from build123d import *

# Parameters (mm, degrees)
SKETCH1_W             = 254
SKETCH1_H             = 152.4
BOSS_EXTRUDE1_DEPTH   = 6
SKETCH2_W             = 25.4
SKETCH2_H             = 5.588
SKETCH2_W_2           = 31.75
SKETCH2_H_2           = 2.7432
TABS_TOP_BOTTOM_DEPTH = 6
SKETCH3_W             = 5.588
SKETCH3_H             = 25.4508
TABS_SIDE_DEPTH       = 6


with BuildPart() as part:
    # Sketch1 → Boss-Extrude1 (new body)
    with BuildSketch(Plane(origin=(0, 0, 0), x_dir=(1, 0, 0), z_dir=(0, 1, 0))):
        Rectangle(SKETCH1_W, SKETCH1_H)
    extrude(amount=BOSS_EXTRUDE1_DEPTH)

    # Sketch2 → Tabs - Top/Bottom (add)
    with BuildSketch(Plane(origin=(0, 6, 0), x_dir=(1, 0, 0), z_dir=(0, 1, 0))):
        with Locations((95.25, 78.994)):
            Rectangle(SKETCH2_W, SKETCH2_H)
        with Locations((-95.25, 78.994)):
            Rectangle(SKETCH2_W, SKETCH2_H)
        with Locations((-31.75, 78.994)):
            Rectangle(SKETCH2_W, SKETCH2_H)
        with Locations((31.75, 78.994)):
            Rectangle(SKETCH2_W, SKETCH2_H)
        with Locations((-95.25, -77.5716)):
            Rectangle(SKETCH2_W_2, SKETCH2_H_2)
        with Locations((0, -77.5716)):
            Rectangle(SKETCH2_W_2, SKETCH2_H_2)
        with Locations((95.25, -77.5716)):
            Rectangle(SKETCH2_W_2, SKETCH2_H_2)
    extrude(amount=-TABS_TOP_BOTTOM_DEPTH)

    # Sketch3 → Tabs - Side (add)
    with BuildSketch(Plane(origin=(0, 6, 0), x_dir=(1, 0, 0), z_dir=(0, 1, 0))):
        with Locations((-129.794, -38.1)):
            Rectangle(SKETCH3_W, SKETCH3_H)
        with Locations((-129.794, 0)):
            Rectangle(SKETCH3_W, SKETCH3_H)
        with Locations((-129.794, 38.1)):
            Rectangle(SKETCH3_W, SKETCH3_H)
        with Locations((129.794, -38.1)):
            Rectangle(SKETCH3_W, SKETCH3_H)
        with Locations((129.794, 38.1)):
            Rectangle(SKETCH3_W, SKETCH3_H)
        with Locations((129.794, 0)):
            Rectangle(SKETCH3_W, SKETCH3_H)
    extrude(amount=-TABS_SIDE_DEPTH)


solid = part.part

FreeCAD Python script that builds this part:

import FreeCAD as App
import Part
import Sketcher
from FreeCAD import Vector
Q = App.Units.Quantity

doc = App.newDocument("Part")
body = doc.addObject("PartDesign::Body", "Body")

# Sketch on XZ plane
sketch1 = body.newObject("Sketcher::SketchObject", "Sketch")
sketch1.AttachmentSupport = (doc.getObject("XZ_Plane"), [""])
sketch1.MapMode = "FlatFace"
sketch1.addGeometry(Part.LineSegment(Vector(-127, -76, 0), Vector(-127, 76, 0)), False)
sketch1.addGeometry(Part.LineSegment(Vector(-127, 76, 0), Vector(127, 76, 0)), False)
sketch1.addGeometry(Part.LineSegment(Vector(127, 76, 0), Vector(127, -76, 0)), False)
sketch1.addGeometry(Part.LineSegment(Vector(127, -76, 0), Vector(-127, -76, 0)), False)
sketch1.addConstraint(Sketcher.Constraint("Coincident", 0, 2, 1, 1))
sketch1.addConstraint(Sketcher.Constraint("Coincident", 1, 2, 2, 1))
sketch1.addConstraint(Sketcher.Constraint("Coincident", 2, 2, 3, 1))
sketch1.addConstraint(Sketcher.Constraint("Coincident", 3, 2, 0, 1))
sketch1.addConstraint(Sketcher.Constraint("Vertical", 0))
sketch1.addConstraint(Sketcher.Constraint("Horizontal", 1))
sketch1.addConstraint(Sketcher.Constraint("Vertical", 2))
sketch1.addConstraint(Sketcher.Constraint("Horizontal", 3))
sketch1.addConstraint(Sketcher.Constraint("Symmetric", 0, 2, 2, 2, -1, 1))
sketch1.addConstraint(Sketcher.Constraint("DistanceX", 1, 1, 1, 2, Q("10 in")))
sketch1.addConstraint(Sketcher.Constraint("DistanceY", 0, 1, 0, 2, Q("6 in")))
pad1 = body.newObject("PartDesign::Pad", "Pad")
pad1.Profile = sketch1
pad1.Length = 6
pad1.Reversed = True

# Sketch on XZ plane
sketch2 = body.newObject("Sketcher::SketchObject", "Sketch001")
sketch2.AttachmentSupport = (doc.getObject("XZ_Plane"), [""])
sketch2.MapMode = "FlatFace"
sketch2.AttachmentOffset = App.Placement(Vector(0, 0, -6), App.Rotation())
sketch2.addGeometry(Part.LineSegment(Vector(82.5, -81.8, 0), Vector(82.5, -76.2, 0)), False)
sketch2.addGeometry(Part.LineSegment(Vector(82.5, -76.2, 0), Vector(108, -76.2, 0)), False)
sketch2.addGeometry(Part.LineSegment(Vector(108, -76.2, 0), Vector(108, -81.8, 0)), False)
sketch2.addGeometry(Part.LineSegment(Vector(108, -81.8, 0), Vector(82.5, -81.8, 0)), False)
sketch2.addGeometry(Part.LineSegment(Vector(-108, -81.8, 0), Vector(-108, -76.2, 0)), False)
sketch2.addGeometry(Part.LineSegment(Vector(-108, -76.2, 0), Vector(-82.5, -76.2, 0)), False)
sketch2.addGeometry(Part.LineSegment(Vector(-82.5, -76.2, 0), Vector(-82.5, -81.8, 0)), False)
sketch2.addGeometry(Part.LineSegment(Vector(-82.5, -81.8, 0), Vector(-108, -81.8, 0)), False)
sketch2.addGeometry(Part.LineSegment(Vector(-44.5, -81.8, 0), Vector(-44.5, -76.2, 0)), False)
sketch2.addGeometry(Part.LineSegment(Vector(-44.5, -76.2, 0), Vector(-19.1, -76.2, 0)), False)
sketch2.addGeometry(Part.LineSegment(Vector(-19.1, -76.2, 0), Vector(-19.1, -81.8, 0)), False)
sketch2.addGeometry(Part.LineSegment(Vector(-19.1, -81.8, 0), Vector(-44.5, -81.8, 0)), False)
sketch2.addGeometry(Part.LineSegment(Vector(19.1, -81.8, 0), Vector(19.1, -76.2, 0)), False)
sketch2.addGeometry(Part.LineSegment(Vector(19.1, -76.2, 0), Vector(44.5, -76.2, 0)), False)
sketch2.addGeometry(Part.LineSegment(Vector(44.5, -76.2, 0), Vector(44.5, -81.8, 0)), False)
sketch2.addGeometry(Part.LineSegment(Vector(44.5, -81.8, 0), Vector(19.1, -81.8, 0)), False)
sketch2.addGeometry(Part.LineSegment(Vector(-111.1, 76.2, 0), Vector(-111.1, 78.9, 0)), False)
sketch2.addGeometry(Part.LineSegment(Vector(-111.1, 78.9, 0), Vector(-79.4, 78.9, 0)), False)
sketch2.addGeometry(Part.LineSegment(Vector(-79.4, 78.9, 0), Vector(-79.4, 76.2, 0)), False)
sketch2.addGeometry(Part.LineSegment(Vector(-79.4, 76.2, 0), Vector(-111.1, 76.2, 0)), False)
sketch2.addGeometry(Part.LineSegment(Vector(-15.9, 76.2, 0), Vector(-15.9, 78.9, 0)), False)
sketch2.addGeometry(Part.LineSegment(Vector(-15.9, 78.9, 0), Vector(15.9, 78.9, 0)), False)
sketch2.addGeometry(Part.LineSegment(Vector(15.9, 78.9, 0), Vector(15.9, 76.2, 0)), False)
sketch2.addGeometry(Part.LineSegment(Vector(15.9, 76.2, 0), Vector(-15.9, 76.2, 0)), False)
sketch2.addGeometry(Part.LineSegment(Vector(79.4, 76.2, 0), Vector(79.4, 78.9, 0)), False)
sketch2.addGeometry(Part.LineSegment(Vector(79.4, 78.9, 0), Vector(111.1, 78.9, 0)), False)
sketch2.addGeometry(Part.LineSegment(Vector(111.1, 78.9, 0), Vector(111.1, 76.2, 0)), False)
sketch2.addGeometry(Part.LineSegment(Vector(111.1, 76.2, 0), Vector(79.4, 76.2, 0)), False)
sketch2.addConstraint(Sketcher.Constraint("Coincident", 0, 2, 1, 1))
sketch2.addConstraint(Sketcher.Constraint("Coincident", 1, 2, 2, 1))
sketch2.addConstraint(Sketcher.Constraint("Coincident", 2, 2, 3, 1))
sketch2.addConstraint(Sketcher.Constraint("Coincident", 3, 2, 0, 1))
sketch2.addConstraint(Sketcher.Constraint("Coincident", 4, 2, 5, 1))
sketch2.addConstraint(Sketcher.Constraint("Coincident", 5, 2, 6, 1))
sketch2.addConstraint(Sketcher.Constraint("Coincident", 6, 2, 7, 1))
sketch2.addConstraint(Sketcher.Constraint("Coincident", 7, 2, 4, 1))
sketch2.addConstraint(Sketcher.Constraint("Coincident", 8, 2, 9, 1))
sketch2.addConstraint(Sketcher.Constraint("Coincident", 9, 2, 10, 1))
sketch2.addConstraint(Sketcher.Constraint("Coincident", 10, 2, 11, 1))
sketch2.addConstraint(Sketcher.Constraint("Coincident", 11, 2, 8, 1))
sketch2.addConstraint(Sketcher.Constraint("Coincident", 12, 2, 13, 1))
sketch2.addConstraint(Sketcher.Constraint("Coincident", 13, 2, 14, 1))
sketch2.addConstraint(Sketcher.Constraint("Coincident", 14, 2, 15, 1))
sketch2.addConstraint(Sketcher.Constraint("Coincident", 15, 2, 12, 1))
sketch2.addConstraint(Sketcher.Constraint("Coincident", 16, 2, 17, 1))
sketch2.addConstraint(Sketcher.Constraint("Coincident", 17, 2, 18, 1))
sketch2.addConstraint(Sketcher.Constraint("Coincident", 18, 2, 19, 1))
sketch2.addConstraint(Sketcher.Constraint("Coincident", 19, 2, 16, 1))
sketch2.addConstraint(Sketcher.Constraint("Coincident", 20, 2, 21, 1))
sketch2.addConstraint(Sketcher.Constraint("Coincident", 21, 2, 22, 1))
sketch2.addConstraint(Sketcher.Constraint("Coincident", 22, 2, 23, 1))
sketch2.addConstraint(Sketcher.Constraint("Coincident", 23, 2, 20, 1))
sketch2.addConstraint(Sketcher.Constraint("Coincident", 24, 2, 25, 1))
sketch2.addConstraint(Sketcher.Constraint("Coincident", 25, 2, 26, 1))
sketch2.addConstraint(Sketcher.Constraint("Coincident", 26, 2, 27, 1))
sketch2.addConstraint(Sketcher.Constraint("Coincident", 27, 2, 24, 1))
sketch2.addConstraint(Sketcher.Constraint("Vertical", 0))
sketch2.addConstraint(Sketcher.Constraint("Horizontal", 1))
sketch2.addConstraint(Sketcher.Constraint("Vertical", 2))
sketch2.addConstraint(Sketcher.Constraint("Horizontal", 3))
sketch2.addConstraint(Sketcher.Constraint("Vertical", 4))
sketch2.addConstraint(Sketcher.Constraint("Horizontal", 5))
sketch2.addConstraint(Sketcher.Constraint("Vertical", 6))
sketch2.addConstraint(Sketcher.Constraint("Horizontal", 7))
sketch2.addConstraint(Sketcher.Constraint("Vertical", 8))
sketch2.addConstraint(Sketcher.Constraint("Horizontal", 9))
sketch2.addConstraint(Sketcher.Constraint("Vertical", 10))
sketch2.addConstraint(Sketcher.Constraint("Horizontal", 11))
sketch2.addConstraint(Sketcher.Constraint("Vertical", 12))
sketch2.addConstraint(Sketcher.Constraint("Horizontal", 13))
sketch2.addConstraint(Sketcher.Constraint("Vertical", 14))
sketch2.addConstraint(Sketcher.Constraint("Horizontal", 15))
sketch2.addConstraint(Sketcher.Constraint("Vertical", 16))
sketch2.addConstraint(Sketcher.Constraint("Horizontal", 17))
sketch2.addConstraint(Sketcher.Constraint("Vertical", 18))
sketch2.addConstraint(Sketcher.Constraint("Horizontal", 19))
sketch2.addConstraint(Sketcher.Constraint("Vertical", 20))
sketch2.addConstraint(Sketcher.Constraint("Horizontal", 21))
sketch2.addConstraint(Sketcher.Constraint("Vertical", 22))
sketch2.addConstraint(Sketcher.Constraint("Horizontal", 23))
sketch2.addConstraint(Sketcher.Constraint("Vertical", 24))
sketch2.addConstraint(Sketcher.Constraint("Horizontal", 25))
sketch2.addConstraint(Sketcher.Constraint("Vertical", 26))
sketch2.addConstraint(Sketcher.Constraint("Horizontal", 27))
sketch2.addConstraint(Sketcher.Constraint("Symmetric", 1, 2, 4, 2, -2))
sketch2.addConstraint(Sketcher.Constraint("Symmetric", 3, 2, 6, 2, -2))
sketch2.addConstraint(Sketcher.Constraint("Symmetric", 9, 2, 12, 2, -2))
sketch2.addConstraint(Sketcher.Constraint("Symmetric", 11, 2, 14, 2, -2))
sketch2.addConstraint(Sketcher.Constraint("Symmetric", 17, 2, 24, 2, -2))
sketch2.addConstraint(Sketcher.Constraint("Symmetric", 19, 2, 26, 2, -2))
sketch2.addConstraint(Sketcher.Constraint("Horizontal", 5, 2, 8, 2))
sketch2.addConstraint(Sketcher.Constraint("Horizontal", 7, 2, 10, 2))
sketch2.addConstraint(Sketcher.Constraint("Horizontal", 17, 2, 20, 2))
sketch2.addConstraint(Sketcher.Constraint("Horizontal", 19, 2, 22, 2))
sketch2.addConstraint(Sketcher.Constraint("Equal", 7, 9))
sketch2.addConstraint(Sketcher.Constraint("Equal", 19, 21))
sketch2.addConstraint(Sketcher.Constraint("DistanceX", 1, 1, 1, 2, Q("1 in")))
sketch2.addConstraint(Sketcher.Constraint("DistanceY", 0, 2, -1, 1, Q("3 in")))
sketch2.addConstraint(Sketcher.Constraint("DistanceY", -1, 1, 18, 2, Q("3 in")))
sketch2.addConstraint(Sketcher.Constraint("DistanceX", 8, 2, 0, 2, Q("5 in")))
sketch2.addConstraint(Sketcher.Constraint("DistanceX", 16, 2, 21, 2, Q("5 in")))
sketch2.addConstraint(Sketcher.Constraint("DistanceX", 20, 2, 25, 2, Q("5 in")))
sketch2.addConstraint(Sketcher.Constraint("DistanceX", 17, 1, 17, 2, Q("1.25 in")))
sketch2.addConstraint(Sketcher.Constraint("DistanceY", 0, 1, 0, 2, Q("0.22 in")))
sketch2.addConstraint(Sketcher.Constraint("DistanceX", 4, 2, 0, 2, Q("7.5 in")))
sketch2.addConstraint(Sketcher.Constraint("DistanceY", 16, 1, 16, 2, Q("0.108 in")))
pad2 = body.newObject("PartDesign::Pad", "Pad001")
pad2.Profile = sketch2
pad2.Length = 6

# Sketch on XZ plane
sketch3 = body.newObject("Sketcher::SketchObject", "Sketch002")
sketch3.AttachmentSupport = (doc.getObject("XZ_Plane"), [""])
sketch3.MapMode = "FlatFace"
sketch3.AttachmentOffset = App.Placement(Vector(0, 0, -6), App.Rotation())
sketch3.addGeometry(Part.LineSegment(Vector(-133, 25, 0), Vector(-133, 51, 0)), False)
sketch3.addGeometry(Part.LineSegment(Vector(-133, 51, 0), Vector(-127, 51, 0)), False)
sketch3.addGeometry(Part.LineSegment(Vector(-127, 51, 0), Vector(-127, 25, 0)), False)
sketch3.addGeometry(Part.LineSegment(Vector(-127, 25, 0), Vector(-133, 25, 0)), False)
sketch3.addGeometry(Part.LineSegment(Vector(-133, -13, 0), Vector(-133, 13, 0)), False)
sketch3.addGeometry(Part.LineSegment(Vector(-133, 13, 0), Vector(-127, 13, 0)), False)
sketch3.addGeometry(Part.LineSegment(Vector(-127, 13, 0), Vector(-127, -13, 0)), False)
sketch3.addGeometry(Part.LineSegment(Vector(-127, -13, 0), Vector(-133, -13, 0)), False)
sketch3.addGeometry(Part.LineSegment(Vector(-133, -51, 0), Vector(-133, -25, 0)), False)
sketch3.addGeometry(Part.LineSegment(Vector(-133, -25, 0), Vector(-127, -25, 0)), False)
sketch3.addGeometry(Part.LineSegment(Vector(-127, -25, 0), Vector(-127, -51, 0)), False)
sketch3.addGeometry(Part.LineSegment(Vector(-127, -51, 0), Vector(-133, -51, 0)), False)
sketch3.addGeometry(Part.LineSegment(Vector(127, 25, 0), Vector(127, 51, 0)), False)
sketch3.addGeometry(Part.LineSegment(Vector(127, 51, 0), Vector(133, 51, 0)), False)
sketch3.addGeometry(Part.LineSegment(Vector(133, 51, 0), Vector(133, 25, 0)), False)
sketch3.addGeometry(Part.LineSegment(Vector(133, 25, 0), Vector(127, 25, 0)), False)
sketch3.addGeometry(Part.LineSegment(Vector(127, -51, 0), Vector(127, -25, 0)), False)
sketch3.addGeometry(Part.LineSegment(Vector(127, -25, 0), Vector(133, -25, 0)), False)
sketch3.addGeometry(Part.LineSegment(Vector(133, -25, 0), Vector(133, -51, 0)), False)
sketch3.addGeometry(Part.LineSegment(Vector(133, -51, 0), Vector(127, -51, 0)), False)
sketch3.addGeometry(Part.LineSegment(Vector(127, -13, 0), Vector(127, 13, 0)), False)
sketch3.addGeometry(Part.LineSegment(Vector(127, 13, 0), Vector(133, 13, 0)), False)
sketch3.addGeometry(Part.LineSegment(Vector(133, 13, 0), Vector(133, -13, 0)), False)
sketch3.addGeometry(Part.LineSegment(Vector(133, -13, 0), Vector(127, -13, 0)), False)
sketch3.addConstraint(Sketcher.Constraint("Coincident", 0, 2, 1, 1))
sketch3.addConstraint(Sketcher.Constraint("Coincident", 1, 2, 2, 1))
sketch3.addConstraint(Sketcher.Constraint("Coincident", 2, 2, 3, 1))
sketch3.addConstraint(Sketcher.Constraint("Coincident", 3, 2, 0, 1))
sketch3.addConstraint(Sketcher.Constraint("Coincident", 4, 2, 5, 1))
sketch3.addConstraint(Sketcher.Constraint("Coincident", 5, 2, 6, 1))
sketch3.addConstraint(Sketcher.Constraint("Coincident", 6, 2, 7, 1))
sketch3.addConstraint(Sketcher.Constraint("Coincident", 7, 2, 4, 1))
sketch3.addConstraint(Sketcher.Constraint("Coincident", 8, 2, 9, 1))
sketch3.addConstraint(Sketcher.Constraint("Coincident", 9, 2, 10, 1))
sketch3.addConstraint(Sketcher.Constraint("Coincident", 10, 2, 11, 1))
sketch3.addConstraint(Sketcher.Constraint("Coincident", 11, 2, 8, 1))
sketch3.addConstraint(Sketcher.Constraint("Coincident", 12, 2, 13, 1))
sketch3.addConstraint(Sketcher.Constraint("Coincident", 13, 2, 14, 1))
sketch3.addConstraint(Sketcher.Constraint("Coincident", 14, 2, 15, 1))
sketch3.addConstraint(Sketcher.Constraint("Coincident", 15, 2, 12, 1))
sketch3.addConstraint(Sketcher.Constraint("Coincident", 16, 2, 17, 1))
sketch3.addConstraint(Sketcher.Constraint("Coincident", 17, 2, 18, 1))
sketch3.addConstraint(Sketcher.Constraint("Coincident", 18, 2, 19, 1))
sketch3.addConstraint(Sketcher.Constraint("Coincident", 19, 2, 16, 1))
sketch3.addConstraint(Sketcher.Constraint("Coincident", 20, 2, 21, 1))
sketch3.addConstraint(Sketcher.Constraint("Coincident", 21, 2, 22, 1))
sketch3.addConstraint(Sketcher.Constraint("Coincident", 22, 2, 23, 1))
sketch3.addConstraint(Sketcher.Constraint("Coincident", 23, 2, 20, 1))
sketch3.addConstraint(Sketcher.Constraint("Vertical", 0))
sketch3.addConstraint(Sketcher.Constraint("Horizontal", 1))
sketch3.addConstraint(Sketcher.Constraint("Vertical", 2))
sketch3.addConstraint(Sketcher.Constraint("Horizontal", 3))
sketch3.addConstraint(Sketcher.Constraint("Vertical", 4))
sketch3.addConstraint(Sketcher.Constraint("Horizontal", 5))
sketch3.addConstraint(Sketcher.Constraint("Vertical", 6))
sketch3.addConstraint(Sketcher.Constraint("Horizontal", 7))
sketch3.addConstraint(Sketcher.Constraint("Vertical", 8))
sketch3.addConstraint(Sketcher.Constraint("Horizontal", 9))
sketch3.addConstraint(Sketcher.Constraint("Vertical", 10))
sketch3.addConstraint(Sketcher.Constraint("Horizontal", 11))
sketch3.addConstraint(Sketcher.Constraint("Vertical", 12))
sketch3.addConstraint(Sketcher.Constraint("Horizontal", 13))
sketch3.addConstraint(Sketcher.Constraint("Vertical", 14))
sketch3.addConstraint(Sketcher.Constraint("Horizontal", 15))
sketch3.addConstraint(Sketcher.Constraint("Vertical", 16))
sketch3.addConstraint(Sketcher.Constraint("Horizontal", 17))
sketch3.addConstraint(Sketcher.Constraint("Vertical", 18))
sketch3.addConstraint(Sketcher.Constraint("Horizontal", 19))
sketch3.addConstraint(Sketcher.Constraint("Vertical", 20))
sketch3.addConstraint(Sketcher.Constraint("Horizontal", 21))
sketch3.addConstraint(Sketcher.Constraint("Vertical", 22))
sketch3.addConstraint(Sketcher.Constraint("Horizontal", 23))
sketch3.addConstraint(Sketcher.Constraint("Symmetric", 10, 2, 12, 2, -1, 1))
sketch3.addConstraint(Sketcher.Constraint("Symmetric", 8, 2, 14, 2, -1, 1))
sketch3.addConstraint(Sketcher.Constraint("Symmetric", 2, 2, 16, 2, -1, 1))
sketch3.addConstraint(Sketcher.Constraint("Symmetric", 0, 2, 18, 2, -1, 1))
sketch3.addConstraint(Sketcher.Constraint("Symmetric", 6, 2, 20, 2, -1, 1))
sketch3.addConstraint(Sketcher.Constraint("Symmetric", 4, 2, 22, 2, -1, 1))
sketch3.addConstraint(Sketcher.Constraint("Symmetric", 1, 2, 12, 2, -2))
sketch3.addConstraint(Sketcher.Constraint("Symmetric", 3, 2, 14, 2, -2))
sketch3.addConstraint(Sketcher.Constraint("Horizontal", 5, 2, 20, 2))
sketch3.addConstraint(Sketcher.Constraint("Vertical", 3, 2, 4, 2))
sketch3.addConstraint(Sketcher.Constraint("Vertical", 2, 2, 5, 2))
sketch3.addConstraint(Sketcher.Constraint("Equal", 2, 4))
sketch3.addConstraint(Sketcher.Constraint("DistanceX", 1, 2, -1, 1, Q("5 in")))
sketch3.addConstraint(Sketcher.Constraint("DistanceY", 16, 2, 12, 2, Q("3 in")))
sketch3.addConstraint(Sketcher.Constraint("DistanceX", 1, 1, 1, 2, Q("0.22 in")))
sketch3.addConstraint(Sketcher.Constraint("DistanceY", 0, 1, 0, 2, Q("1.002 in")))
pad3 = body.newObject("PartDesign::Pad", "Pad002")
pad3.Profile = sketch3
pad3.Length = 6

doc.recompute()
